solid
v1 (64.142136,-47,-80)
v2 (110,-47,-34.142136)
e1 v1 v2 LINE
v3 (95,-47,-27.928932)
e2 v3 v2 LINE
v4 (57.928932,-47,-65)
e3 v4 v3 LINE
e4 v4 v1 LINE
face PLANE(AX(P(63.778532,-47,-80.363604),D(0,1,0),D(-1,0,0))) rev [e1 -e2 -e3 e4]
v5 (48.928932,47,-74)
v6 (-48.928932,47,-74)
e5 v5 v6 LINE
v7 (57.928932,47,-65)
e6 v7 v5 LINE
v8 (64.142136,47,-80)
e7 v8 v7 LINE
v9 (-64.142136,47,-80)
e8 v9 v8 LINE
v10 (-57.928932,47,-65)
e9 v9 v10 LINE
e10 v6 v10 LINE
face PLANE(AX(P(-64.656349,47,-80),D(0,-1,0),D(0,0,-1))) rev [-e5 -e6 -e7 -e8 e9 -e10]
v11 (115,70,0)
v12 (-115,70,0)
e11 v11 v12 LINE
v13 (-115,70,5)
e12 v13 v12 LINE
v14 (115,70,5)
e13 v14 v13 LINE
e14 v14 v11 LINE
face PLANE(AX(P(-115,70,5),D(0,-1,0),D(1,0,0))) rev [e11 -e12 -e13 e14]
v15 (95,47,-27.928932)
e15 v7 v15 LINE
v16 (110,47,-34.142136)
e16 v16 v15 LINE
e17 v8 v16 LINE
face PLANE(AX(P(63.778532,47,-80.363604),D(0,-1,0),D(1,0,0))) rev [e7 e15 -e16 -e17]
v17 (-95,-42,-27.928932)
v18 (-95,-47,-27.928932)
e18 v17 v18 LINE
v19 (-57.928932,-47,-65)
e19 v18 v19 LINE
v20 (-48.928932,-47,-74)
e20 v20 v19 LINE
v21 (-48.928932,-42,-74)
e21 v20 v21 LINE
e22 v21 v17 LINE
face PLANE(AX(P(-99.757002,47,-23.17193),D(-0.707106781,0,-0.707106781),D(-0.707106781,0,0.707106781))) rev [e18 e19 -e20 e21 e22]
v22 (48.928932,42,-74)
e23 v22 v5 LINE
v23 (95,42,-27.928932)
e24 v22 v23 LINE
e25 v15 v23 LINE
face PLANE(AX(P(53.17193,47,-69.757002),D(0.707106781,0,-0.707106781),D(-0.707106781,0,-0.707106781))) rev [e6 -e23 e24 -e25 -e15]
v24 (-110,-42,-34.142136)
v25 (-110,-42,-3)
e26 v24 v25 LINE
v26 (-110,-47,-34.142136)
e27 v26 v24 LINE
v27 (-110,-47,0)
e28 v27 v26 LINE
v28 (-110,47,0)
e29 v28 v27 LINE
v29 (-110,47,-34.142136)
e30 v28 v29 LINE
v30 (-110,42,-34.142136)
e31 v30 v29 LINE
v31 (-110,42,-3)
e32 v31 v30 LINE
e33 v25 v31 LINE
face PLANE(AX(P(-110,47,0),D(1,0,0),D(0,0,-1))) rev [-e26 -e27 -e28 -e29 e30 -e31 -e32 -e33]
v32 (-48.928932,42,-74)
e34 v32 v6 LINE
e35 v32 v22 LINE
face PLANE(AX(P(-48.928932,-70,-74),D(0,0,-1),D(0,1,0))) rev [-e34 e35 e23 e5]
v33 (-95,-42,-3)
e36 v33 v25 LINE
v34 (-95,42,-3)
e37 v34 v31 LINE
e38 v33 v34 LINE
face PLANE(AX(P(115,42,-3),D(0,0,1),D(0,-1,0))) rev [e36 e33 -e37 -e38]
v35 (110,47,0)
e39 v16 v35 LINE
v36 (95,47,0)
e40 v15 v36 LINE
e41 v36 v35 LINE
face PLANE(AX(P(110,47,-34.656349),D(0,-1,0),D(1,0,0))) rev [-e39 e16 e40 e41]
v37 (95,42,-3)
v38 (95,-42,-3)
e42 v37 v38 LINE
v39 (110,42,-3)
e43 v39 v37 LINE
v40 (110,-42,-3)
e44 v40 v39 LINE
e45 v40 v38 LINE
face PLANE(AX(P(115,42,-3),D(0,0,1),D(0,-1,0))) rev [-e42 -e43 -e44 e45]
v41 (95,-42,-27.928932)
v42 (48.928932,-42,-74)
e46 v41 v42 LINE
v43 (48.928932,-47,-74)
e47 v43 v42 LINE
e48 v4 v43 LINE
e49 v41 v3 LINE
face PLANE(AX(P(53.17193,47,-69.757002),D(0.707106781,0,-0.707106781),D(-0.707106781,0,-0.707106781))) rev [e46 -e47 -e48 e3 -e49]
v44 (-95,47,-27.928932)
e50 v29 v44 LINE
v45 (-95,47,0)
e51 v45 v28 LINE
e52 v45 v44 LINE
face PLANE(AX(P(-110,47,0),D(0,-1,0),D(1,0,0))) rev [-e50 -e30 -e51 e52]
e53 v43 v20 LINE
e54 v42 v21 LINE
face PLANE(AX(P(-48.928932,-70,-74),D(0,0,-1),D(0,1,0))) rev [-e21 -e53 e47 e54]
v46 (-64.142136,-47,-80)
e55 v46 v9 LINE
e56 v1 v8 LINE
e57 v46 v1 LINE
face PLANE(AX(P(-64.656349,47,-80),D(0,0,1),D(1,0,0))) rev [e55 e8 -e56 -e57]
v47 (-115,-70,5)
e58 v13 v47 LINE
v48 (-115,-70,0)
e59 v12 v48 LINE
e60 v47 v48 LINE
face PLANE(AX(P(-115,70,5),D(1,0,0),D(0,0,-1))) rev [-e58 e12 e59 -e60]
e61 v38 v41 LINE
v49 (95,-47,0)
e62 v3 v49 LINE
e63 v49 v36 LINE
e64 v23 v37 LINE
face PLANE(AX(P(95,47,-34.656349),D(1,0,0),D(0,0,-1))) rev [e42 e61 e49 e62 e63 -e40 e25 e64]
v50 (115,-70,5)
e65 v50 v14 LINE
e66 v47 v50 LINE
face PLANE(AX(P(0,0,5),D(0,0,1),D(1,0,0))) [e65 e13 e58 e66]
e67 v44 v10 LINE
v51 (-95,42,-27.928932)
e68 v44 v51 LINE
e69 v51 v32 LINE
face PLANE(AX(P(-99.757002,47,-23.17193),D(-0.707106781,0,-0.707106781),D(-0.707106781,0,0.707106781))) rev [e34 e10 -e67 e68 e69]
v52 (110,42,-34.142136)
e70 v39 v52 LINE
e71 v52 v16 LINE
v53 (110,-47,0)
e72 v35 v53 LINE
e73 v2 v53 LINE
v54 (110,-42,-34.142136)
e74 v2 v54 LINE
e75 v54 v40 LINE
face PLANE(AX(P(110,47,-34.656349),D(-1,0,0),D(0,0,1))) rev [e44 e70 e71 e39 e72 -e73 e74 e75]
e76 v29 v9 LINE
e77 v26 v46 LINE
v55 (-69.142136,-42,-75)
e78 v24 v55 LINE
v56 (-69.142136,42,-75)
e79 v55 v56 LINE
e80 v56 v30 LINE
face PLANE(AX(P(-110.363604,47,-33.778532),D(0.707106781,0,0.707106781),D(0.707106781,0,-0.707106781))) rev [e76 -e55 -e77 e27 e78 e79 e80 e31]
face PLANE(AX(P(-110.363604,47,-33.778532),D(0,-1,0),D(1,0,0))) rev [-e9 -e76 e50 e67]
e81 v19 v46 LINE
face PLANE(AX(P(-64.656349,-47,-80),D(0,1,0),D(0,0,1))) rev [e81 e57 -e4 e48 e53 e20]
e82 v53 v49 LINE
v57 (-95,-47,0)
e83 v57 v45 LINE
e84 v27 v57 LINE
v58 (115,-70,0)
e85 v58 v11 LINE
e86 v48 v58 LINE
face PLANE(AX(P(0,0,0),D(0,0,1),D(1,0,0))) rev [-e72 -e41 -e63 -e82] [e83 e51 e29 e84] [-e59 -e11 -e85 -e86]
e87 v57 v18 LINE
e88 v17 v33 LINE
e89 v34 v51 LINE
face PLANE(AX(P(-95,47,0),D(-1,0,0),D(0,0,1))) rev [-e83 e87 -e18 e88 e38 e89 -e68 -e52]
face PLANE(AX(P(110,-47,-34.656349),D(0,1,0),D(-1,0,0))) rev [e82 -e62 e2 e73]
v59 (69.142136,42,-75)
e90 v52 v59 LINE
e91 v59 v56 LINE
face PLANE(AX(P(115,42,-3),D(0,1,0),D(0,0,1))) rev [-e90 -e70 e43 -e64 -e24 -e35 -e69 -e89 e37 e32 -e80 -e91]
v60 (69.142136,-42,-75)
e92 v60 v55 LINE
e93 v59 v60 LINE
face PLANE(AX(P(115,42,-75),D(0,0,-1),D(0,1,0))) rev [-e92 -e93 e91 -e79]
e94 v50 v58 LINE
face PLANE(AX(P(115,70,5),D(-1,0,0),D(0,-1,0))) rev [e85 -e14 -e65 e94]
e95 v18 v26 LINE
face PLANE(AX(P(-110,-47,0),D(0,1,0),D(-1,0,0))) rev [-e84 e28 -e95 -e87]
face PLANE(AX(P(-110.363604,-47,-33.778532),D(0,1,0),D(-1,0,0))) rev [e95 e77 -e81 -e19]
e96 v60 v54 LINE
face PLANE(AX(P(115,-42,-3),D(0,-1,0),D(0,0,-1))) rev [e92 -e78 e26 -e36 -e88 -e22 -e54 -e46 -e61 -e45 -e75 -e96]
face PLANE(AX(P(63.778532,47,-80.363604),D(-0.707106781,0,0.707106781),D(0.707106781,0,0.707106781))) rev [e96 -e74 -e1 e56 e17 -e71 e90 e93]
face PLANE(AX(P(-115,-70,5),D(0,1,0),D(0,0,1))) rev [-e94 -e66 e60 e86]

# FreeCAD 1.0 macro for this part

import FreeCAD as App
import Part
import Sketcher
Q = App.Units.Quantity


def add_polygon(sketch, points):
    """Adds a closed chain of lines whose ends are joined by coincident constraints."""
    first, n = sketch.GeometryCount, len(points)
    for a, b in zip(points, points[1:] + points[:1]):
        sketch.addGeometry(Part.LineSegment(App.Vector(*a, 0), App.Vector(*b, 0)), False)
    for i in range(n):
        sketch.addConstraint(Sketcher.Constraint("Coincident", first + i, 2, first + (i + 1) % n, 1))

doc = App.newDocument("Part")
body = doc.addObject("PartDesign::Body", "Body")

sketch1 = body.newObject("Sketcher::SketchObject", "Sketch")
sketch1.AttachmentSupport = (doc.getObject("XY_Plane"), [""])
sketch1.MapMode = "FlatFace"
add_polygon(sketch1, [(-115, 70), (-115, -70), (115, -70), (115, 70)])
sketch1.addConstraint(Sketcher.Constraint("Vertical", 0))
sketch1.addConstraint(Sketcher.Constraint("Horizontal", 1))
sketch1.addConstraint(Sketcher.Constraint("Vertical", 2))
sketch1.addConstraint(Sketcher.Constraint("Horizontal", 3))
sketch1.addConstraint(Sketcher.Constraint("Symmetric", 0, 2, 2, 2, -1, 1))
sketch1.addConstraint(Sketcher.Constraint("DistanceX", 1, 1, 1, 2, Q("230 mm")))
sketch1.addConstraint(Sketcher.Constraint("DistanceY", 0, 2, 0, 1, Q("140 mm")))
pad1 = body.newObject("PartDesign::Pad", "Pad")
pad1.Profile = sketch1
pad1.Length = 5

sketch2 = body.newObject("Sketcher::SketchObject", "Sketch001")
sketch2.AttachmentSupport = (doc.getObject("XY_Plane"), [""])
sketch2.MapMode = "FlatFace"
add_polygon(sketch2, [(-110, 47), (-110, -47), (-95, -47), (-95, 47)])
sketch2.addConstraint(Sketcher.Constraint("Vertical", 0))
sketch2.addConstraint(Sketcher.Constraint("Horizontal", 1))
sketch2.addConstraint(Sketcher.Constraint("Vertical", 2))
sketch2.addConstraint(Sketcher.Constraint("Horizontal", 3))
sketch2.addConstraint(Sketcher.Constraint("DistanceX", 1, 1, 1, 2, Q("15 mm")))
sketch2.addConstraint(Sketcher.Constraint("DistanceY", 0, 2, 0, 1, Q("94 mm")))
sketch2.addConstraint(Sketcher.Constraint("DistanceX", 0, 2, -1, 1, Q("110 mm")))
sketch2.addConstraint(Sketcher.Constraint("DistanceY", 0, 2, -1, 1, Q("47 mm")))

sketch3 = body.newObject("Sketcher::SketchObject", "Sketch002")
sketch3.AttachmentSupport = (doc.getObject("XZ_Plane"), [""])
sketch3.MapMode = "FlatFace"
sketch3.addGeometry(Part.LineSegment(App.Vector(-100, 0, 0), App.Vector(-100, -30, 0)), False)
sketch3.addGeometry(Part.LineSegment(App.Vector(-100, -30, 0), App.Vector(-60, -70, 0)), False)
sketch3.addGeometry(Part.LineSegment(App.Vector(-60, -70, 0), App.Vector(60, -70, 0)), False)
sketch3.addGeometry(Part.LineSegment(App.Vector(60, -70, 0), App.Vector(100, -30, 0)), False)
sketch3.addGeometry(Part.LineSegment(App.Vector(100, -30, 0), App.Vector(100, 0, 0)), False)
sketch3.addConstraint(Sketcher.Constraint("Coincident", 0, 2, 1, 1))
sketch3.addConstraint(Sketcher.Constraint("Coincident", 1, 2, 2, 1))
sketch3.addConstraint(Sketcher.Constraint("Coincident", 2, 2, 3, 1))
sketch3.addConstraint(Sketcher.Constraint("Coincident", 3, 2, 4, 1))
sketch3.addConstraint(Sketcher.Constraint("Vertical", 0))
sketch3.addConstraint(Sketcher.Constraint("Horizontal", 2))
sketch3.addConstraint(Sketcher.Constraint("Vertical", 4))
sketch3.addConstraint(Sketcher.Constraint("Symmetric", 0, 1, 4, 2, -1, 1))
sketch3.addConstraint(Sketcher.Constraint("PointOnObject", 0, 1, -1))
sketch3.addConstraint(Sketcher.Constraint("Perpendicular", 1, 3))
sketch3.addConstraint(Sketcher.Constraint("Horizontal", 0, 2, 3, 2))
sketch3.addConstraint(Sketcher.Constraint("Equal", 1, 3))
sketch3.addConstraint(Sketcher.Constraint("DistanceX", 2, 1, 2, 2, Q("120 mm")))
sketch3.addConstraint(Sketcher.Constraint("DistanceY", 0, 2, 0, 1, Q("30 mm")))
sketch3.addConstraint(Sketcher.Constraint("DistanceX", 0, 1, -1, 1, Q("100 mm")))
doc.recompute()

additivepipe = body.newObject("PartDesign::AdditivePipe", "AdditivePipe")
additivepipe.Profile = sketch2
additivepipe.Spine = (sketch3, ["Edge1", "Edge2", "Edge3", "Edge4", "Edge5"])
additivepipe.Transition = "Right corner"

sketch4 = body.newObject("Sketcher::SketchObject", "Sketch003")
sketch4.AttachmentSupport = (doc.getObject("XZ_Plane"), [""])
sketch4.MapMode = "FlatFace"
sketch4.AttachmentOffset = App.Placement(App.Vector(0, 0, -47), App.Rotation())
add_polygon(sketch4, [(48.928932, -74), (-48.928932, -74), (-76.464466, -46.464466), (76.464466, -46.464466)])
sketch4.addConstraint(Sketcher.Constraint("Horizontal", 0))
sketch4.addConstraint(Sketcher.Constraint("Horizontal", 2))
sketch4.addConstraint(Sketcher.Constraint("Perpendicular", 1, 3))
sketch4.addConstraint(Sketcher.Constraint("Equal", 1, 3))
sketch4.addConstraint(Sketcher.Constraint("DistanceY", 0, 2, -1, 1, Q("74 mm")))
sketch4.addConstraint(Sketcher.Constraint("DistanceX", 0, 2, 2, 2, Q("125.393398 mm")))
sketch4.addConstraint(Sketcher.Constraint("DistanceX", 0, 2, 0, 1, Q("97.857864 mm")))
sketch4.addConstraint(Sketcher.Constraint("DistanceX", 0, 2, -1, 1, Q("48.928932 mm")))
pocket1 = body.newObject("PartDesign::Pocket", "Pocket")
pocket1.Profile = sketch4
pocket1.Type = "ThroughAll"
pocket1.Reversed = True

sketch5 = body.newObject("Sketcher::SketchObject", "Sketch004")
sketch5.AttachmentSupport = (doc.getObject("YZ_Plane"), [""])
sketch5.MapMode = "FlatFace"
sketch5.AttachmentOffset = App.Placement(App.Vector(0, 0, -110), App.Rotation())
add_polygon(sketch5, [(42, -75), (-42, -75), (-42, -3), (42, -3)])
sketch5.addConstraint(Sketcher.Constraint("Horizontal", 0))
sketch5.addConstraint(Sketcher.Constraint("Vertical", 1))
sketch5.addConstraint(Sketcher.Constraint("Horizontal", 2))
sketch5.addConstraint(Sketcher.Constraint("Vertical", 3))
sketch5.addConstraint(Sketcher.Constraint("DistanceX", 0, 2, 0, 1, Q("84 mm")))
sketch5.addConstraint(Sketcher.Constraint("DistanceY", 1, 1, 1, 2, Q("72 mm")))
sketch5.addConstraint(Sketcher.Constraint("DistanceX", 0, 2, -1, 1, Q("42 mm")))
sketch5.addConstraint(Sketcher.Constraint("DistanceY", 0, 2, -1, 1, Q("75 mm")))
pocket2 = body.newObject("PartDesign::Pocket", "Pocket001")
pocket2.Profile = sketch5
pocket2.Type = "ThroughAll"
pocket2.Reversed = True

doc.recompute()
